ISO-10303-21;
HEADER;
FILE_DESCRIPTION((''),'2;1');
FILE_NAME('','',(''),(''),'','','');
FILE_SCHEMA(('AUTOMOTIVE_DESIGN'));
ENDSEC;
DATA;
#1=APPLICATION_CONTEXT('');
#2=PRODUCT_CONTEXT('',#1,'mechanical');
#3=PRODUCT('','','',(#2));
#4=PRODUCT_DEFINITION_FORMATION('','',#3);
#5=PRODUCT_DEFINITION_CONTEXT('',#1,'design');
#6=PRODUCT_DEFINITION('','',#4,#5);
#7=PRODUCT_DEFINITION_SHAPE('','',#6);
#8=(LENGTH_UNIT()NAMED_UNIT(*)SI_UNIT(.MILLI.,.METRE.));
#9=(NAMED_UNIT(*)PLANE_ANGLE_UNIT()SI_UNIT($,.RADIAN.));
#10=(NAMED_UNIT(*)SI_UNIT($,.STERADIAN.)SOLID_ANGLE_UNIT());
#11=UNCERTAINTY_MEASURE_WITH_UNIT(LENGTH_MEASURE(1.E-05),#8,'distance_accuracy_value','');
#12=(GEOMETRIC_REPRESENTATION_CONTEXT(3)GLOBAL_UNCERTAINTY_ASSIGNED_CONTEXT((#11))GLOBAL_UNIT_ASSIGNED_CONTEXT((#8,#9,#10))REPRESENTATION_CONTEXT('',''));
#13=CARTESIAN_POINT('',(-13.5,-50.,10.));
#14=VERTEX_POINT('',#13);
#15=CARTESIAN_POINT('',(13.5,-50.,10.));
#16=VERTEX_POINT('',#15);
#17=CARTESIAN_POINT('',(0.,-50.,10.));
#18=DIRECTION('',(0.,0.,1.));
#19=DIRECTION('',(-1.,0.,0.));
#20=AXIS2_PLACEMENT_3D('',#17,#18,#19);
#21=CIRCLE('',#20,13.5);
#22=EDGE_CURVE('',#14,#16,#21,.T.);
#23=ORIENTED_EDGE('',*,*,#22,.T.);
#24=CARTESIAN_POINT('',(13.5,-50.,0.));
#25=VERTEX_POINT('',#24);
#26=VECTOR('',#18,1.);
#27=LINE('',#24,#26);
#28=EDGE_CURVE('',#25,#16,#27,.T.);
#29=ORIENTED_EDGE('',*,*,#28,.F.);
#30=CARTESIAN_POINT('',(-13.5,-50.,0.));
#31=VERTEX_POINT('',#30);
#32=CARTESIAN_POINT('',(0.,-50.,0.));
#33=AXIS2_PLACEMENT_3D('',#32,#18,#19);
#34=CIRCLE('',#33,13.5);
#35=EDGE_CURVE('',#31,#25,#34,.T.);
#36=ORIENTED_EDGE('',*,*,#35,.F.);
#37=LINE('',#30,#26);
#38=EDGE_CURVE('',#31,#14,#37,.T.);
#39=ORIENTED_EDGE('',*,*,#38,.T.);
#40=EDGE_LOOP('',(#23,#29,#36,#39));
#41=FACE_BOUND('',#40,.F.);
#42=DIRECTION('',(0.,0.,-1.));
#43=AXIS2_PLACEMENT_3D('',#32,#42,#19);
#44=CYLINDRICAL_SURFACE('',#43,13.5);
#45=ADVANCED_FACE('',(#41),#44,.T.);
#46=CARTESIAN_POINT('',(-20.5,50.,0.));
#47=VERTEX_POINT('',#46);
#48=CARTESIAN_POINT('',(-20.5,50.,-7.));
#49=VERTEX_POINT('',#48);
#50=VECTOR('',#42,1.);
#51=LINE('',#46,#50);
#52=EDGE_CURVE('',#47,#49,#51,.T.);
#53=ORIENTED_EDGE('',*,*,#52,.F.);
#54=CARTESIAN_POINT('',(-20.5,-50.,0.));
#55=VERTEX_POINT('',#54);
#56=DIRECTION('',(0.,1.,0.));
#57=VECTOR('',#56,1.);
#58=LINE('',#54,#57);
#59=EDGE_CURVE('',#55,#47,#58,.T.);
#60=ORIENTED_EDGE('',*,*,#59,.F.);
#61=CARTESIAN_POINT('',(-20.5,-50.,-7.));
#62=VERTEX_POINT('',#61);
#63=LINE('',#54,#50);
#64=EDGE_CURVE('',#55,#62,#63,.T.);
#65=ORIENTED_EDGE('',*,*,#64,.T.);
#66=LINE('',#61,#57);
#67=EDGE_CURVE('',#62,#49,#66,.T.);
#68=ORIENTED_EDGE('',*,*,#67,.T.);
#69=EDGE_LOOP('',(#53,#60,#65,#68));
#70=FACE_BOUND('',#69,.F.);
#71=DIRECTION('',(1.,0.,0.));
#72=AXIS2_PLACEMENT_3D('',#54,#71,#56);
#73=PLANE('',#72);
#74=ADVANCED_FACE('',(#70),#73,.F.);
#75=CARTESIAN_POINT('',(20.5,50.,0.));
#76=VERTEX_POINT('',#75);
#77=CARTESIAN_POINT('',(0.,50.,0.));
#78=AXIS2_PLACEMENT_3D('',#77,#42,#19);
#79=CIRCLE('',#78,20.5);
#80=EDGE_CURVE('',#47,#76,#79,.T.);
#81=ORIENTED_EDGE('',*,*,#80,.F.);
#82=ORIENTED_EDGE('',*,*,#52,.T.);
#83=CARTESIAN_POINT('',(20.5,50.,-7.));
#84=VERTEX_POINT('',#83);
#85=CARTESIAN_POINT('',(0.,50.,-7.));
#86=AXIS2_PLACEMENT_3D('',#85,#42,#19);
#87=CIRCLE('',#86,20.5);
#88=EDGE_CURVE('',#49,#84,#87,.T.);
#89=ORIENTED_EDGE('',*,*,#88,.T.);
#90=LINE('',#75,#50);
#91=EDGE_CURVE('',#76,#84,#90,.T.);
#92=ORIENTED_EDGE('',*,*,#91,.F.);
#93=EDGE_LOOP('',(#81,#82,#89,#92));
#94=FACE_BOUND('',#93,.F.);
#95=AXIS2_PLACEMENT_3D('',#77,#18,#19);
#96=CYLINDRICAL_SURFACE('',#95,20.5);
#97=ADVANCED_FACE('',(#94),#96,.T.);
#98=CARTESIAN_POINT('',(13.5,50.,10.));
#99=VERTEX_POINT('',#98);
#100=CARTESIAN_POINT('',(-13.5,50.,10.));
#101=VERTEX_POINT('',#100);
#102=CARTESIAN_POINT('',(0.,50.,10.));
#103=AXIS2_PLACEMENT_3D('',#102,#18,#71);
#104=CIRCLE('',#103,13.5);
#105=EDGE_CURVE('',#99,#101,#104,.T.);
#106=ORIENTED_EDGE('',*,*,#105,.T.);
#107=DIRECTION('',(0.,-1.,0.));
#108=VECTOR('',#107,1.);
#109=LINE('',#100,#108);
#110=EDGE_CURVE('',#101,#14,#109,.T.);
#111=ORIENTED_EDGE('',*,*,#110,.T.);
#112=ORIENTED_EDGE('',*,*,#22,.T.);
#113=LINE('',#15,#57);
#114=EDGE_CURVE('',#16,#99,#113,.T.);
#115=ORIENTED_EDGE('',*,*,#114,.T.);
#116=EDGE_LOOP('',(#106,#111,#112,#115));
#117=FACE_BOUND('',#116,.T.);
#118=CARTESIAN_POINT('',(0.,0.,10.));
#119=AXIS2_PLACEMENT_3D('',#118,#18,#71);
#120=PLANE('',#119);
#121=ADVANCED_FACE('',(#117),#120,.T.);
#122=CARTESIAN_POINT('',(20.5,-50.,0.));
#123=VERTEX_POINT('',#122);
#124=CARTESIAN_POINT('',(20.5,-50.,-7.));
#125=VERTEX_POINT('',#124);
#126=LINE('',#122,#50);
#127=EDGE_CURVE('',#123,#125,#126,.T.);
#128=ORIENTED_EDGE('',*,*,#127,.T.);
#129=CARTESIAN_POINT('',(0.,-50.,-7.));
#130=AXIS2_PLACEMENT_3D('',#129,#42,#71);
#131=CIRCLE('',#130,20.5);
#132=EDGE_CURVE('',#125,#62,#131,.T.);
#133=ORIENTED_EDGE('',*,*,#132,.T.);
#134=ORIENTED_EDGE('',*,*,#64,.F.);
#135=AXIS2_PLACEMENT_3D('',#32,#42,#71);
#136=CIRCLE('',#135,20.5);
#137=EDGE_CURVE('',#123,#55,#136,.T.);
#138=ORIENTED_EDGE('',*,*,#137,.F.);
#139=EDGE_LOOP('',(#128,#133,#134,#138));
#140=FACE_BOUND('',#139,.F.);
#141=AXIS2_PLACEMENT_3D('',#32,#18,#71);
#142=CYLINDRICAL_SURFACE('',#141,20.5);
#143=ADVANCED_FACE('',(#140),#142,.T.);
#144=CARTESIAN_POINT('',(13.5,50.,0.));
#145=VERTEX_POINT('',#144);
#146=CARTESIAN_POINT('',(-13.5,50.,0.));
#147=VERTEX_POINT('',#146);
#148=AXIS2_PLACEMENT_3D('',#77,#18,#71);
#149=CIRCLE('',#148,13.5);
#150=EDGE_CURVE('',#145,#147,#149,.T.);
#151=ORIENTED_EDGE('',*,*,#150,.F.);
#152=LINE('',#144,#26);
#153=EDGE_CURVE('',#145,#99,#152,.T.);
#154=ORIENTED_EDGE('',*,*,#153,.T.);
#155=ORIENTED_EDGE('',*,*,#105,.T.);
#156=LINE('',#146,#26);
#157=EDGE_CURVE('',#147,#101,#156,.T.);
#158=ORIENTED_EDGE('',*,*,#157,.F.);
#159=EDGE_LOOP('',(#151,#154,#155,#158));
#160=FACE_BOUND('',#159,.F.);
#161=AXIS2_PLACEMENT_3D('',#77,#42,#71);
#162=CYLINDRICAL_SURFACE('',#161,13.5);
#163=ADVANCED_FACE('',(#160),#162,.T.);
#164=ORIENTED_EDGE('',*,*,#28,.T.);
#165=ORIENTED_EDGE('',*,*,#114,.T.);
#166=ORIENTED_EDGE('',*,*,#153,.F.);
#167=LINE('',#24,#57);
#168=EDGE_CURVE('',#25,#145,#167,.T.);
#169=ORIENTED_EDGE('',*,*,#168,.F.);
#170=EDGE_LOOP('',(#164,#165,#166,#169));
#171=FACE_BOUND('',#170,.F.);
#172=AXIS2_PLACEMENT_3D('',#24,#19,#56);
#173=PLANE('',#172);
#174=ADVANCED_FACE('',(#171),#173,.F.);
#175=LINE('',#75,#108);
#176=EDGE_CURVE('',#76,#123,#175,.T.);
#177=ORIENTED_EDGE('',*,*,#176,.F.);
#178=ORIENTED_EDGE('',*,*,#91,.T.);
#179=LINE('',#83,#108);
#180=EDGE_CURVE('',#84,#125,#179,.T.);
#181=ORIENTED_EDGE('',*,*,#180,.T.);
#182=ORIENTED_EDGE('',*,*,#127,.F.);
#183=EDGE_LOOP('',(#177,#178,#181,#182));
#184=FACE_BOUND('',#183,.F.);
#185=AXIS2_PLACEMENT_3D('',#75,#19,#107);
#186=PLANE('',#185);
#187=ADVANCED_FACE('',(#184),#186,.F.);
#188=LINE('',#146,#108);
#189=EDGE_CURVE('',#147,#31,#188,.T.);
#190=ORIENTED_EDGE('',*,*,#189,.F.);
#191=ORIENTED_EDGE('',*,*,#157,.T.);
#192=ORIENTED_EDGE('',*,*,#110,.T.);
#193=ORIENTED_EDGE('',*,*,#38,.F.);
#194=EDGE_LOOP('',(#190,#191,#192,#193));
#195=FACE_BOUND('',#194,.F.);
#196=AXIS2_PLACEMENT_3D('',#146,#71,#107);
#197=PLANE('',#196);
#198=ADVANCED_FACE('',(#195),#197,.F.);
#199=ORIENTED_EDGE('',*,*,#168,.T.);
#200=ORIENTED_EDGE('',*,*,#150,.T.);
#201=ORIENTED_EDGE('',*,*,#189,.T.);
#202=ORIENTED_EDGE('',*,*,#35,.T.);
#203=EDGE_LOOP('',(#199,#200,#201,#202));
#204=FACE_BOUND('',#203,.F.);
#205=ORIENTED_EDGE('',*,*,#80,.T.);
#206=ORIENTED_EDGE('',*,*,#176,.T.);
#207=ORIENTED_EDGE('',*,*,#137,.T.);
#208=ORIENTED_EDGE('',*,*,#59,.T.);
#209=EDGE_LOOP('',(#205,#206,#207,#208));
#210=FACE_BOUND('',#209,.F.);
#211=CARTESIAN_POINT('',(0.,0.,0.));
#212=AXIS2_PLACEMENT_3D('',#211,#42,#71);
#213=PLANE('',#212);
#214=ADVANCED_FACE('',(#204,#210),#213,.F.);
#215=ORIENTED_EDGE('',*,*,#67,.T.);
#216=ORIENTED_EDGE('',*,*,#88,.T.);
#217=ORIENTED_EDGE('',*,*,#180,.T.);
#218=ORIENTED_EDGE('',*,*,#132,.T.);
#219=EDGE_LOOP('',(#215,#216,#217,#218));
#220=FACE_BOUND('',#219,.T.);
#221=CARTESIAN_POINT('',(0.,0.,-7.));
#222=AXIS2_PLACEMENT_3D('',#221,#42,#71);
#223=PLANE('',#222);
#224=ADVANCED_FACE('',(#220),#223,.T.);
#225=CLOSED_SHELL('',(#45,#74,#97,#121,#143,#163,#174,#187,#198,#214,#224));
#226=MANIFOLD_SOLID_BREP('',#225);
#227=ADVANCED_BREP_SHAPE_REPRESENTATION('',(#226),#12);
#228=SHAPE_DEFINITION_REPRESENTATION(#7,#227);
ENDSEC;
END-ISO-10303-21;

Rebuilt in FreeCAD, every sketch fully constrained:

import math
import FreeCAD as App
import Part
import Sketcher
from FreeCAD import Vector
Q = App.Units.Quantity

doc = App.newDocument("Part")
params = doc.addObject("Spreadsheet::Sheet", "Params")
for row, (alias, value) in enumerate([
    ("sketch1_radius", "13.5 mm"),
    ("sketch1_height", "100 mm"),
    ("pad1_length", "10 mm"),
    ("sketch2_radius", "20.5 mm"),
    ("sketch2_height", "100 mm"),
    ("pad2_length", "7 mm"),
], start=1):
    params.set(f"A{row}", alias)
    params.set(f"B{row}", "=" + value)
    params.setAlias(f"B{row}", alias)

body = doc.addObject("PartDesign::Body", "Body")

# Sketch on XY plane
sketch1 = body.newObject("Sketcher::SketchObject", "Sketch")
sketch1.AttachmentSupport = (doc.getObject("XY_Plane"), [""])
sketch1.MapMode = "FlatFace"
sketch1.addGeometry([
    Part.LineSegment(Vector(-13.5, 50, 0), Vector(-13.5, -50, 0)),
    Part.ArcOfCircle(Part.Circle(Vector(0, -50, 0), Vector(0, 0, 1), 13.5), math.radians(180), math.radians(360)),
    Part.LineSegment(Vector(13.5, -50, 0), Vector(13.5, 50, 0)),
    Part.ArcOfCircle(Part.Circle(Vector(0, 50, 0), Vector(0, 0, 1), 13.5), math.radians(0), math.radians(180)),
], False)
sketch1.addConstraint([
    Sketcher.Constraint("Tangent", 0, 2, 1, 1),
    Sketcher.Constraint("Tangent", 1, 2, 2, 1),
    Sketcher.Constraint("Tangent", 2, 2, 3, 1),
    Sketcher.Constraint("Tangent", 3, 2, 0, 1),
    Sketcher.Constraint("Vertical", 0),
    Sketcher.Constraint("Vertical", 2),
    Sketcher.Constraint("Symmetric", 1, 3, 3, 3, -1, 1),
    Sketcher.Constraint("Radius", 1, Q("13.5 mm")),
    Sketcher.Constraint("DistanceY", 0, 2, 0, 1, Q("100 mm")),
])
sketch1.setExpression("Constraints[7]", "Params.sketch1_radius")
sketch1.setExpression("Constraints[8]", "Params.sketch1_height")
pad1 = body.newObject("PartDesign::Pad", "Pad")
pad1.Profile = sketch1
pad1.setExpression("Length", "Params.pad1_length")

# Sketch on XY plane
sketch2 = body.newObject("Sketcher::SketchObject", "Sketch001")
sketch2.AttachmentSupport = (doc.getObject("XY_Plane"), [""])
sketch2.MapMode = "FlatFace"
sketch2.addGeometry([
    Part.ArcOfCircle(Part.Circle(Vector(0, -50, 0), Vector(0, 0, 1), 20.5), math.radians(180), math.radians(360)),
    Part.LineSegment(Vector(-20.5, -50, 0), Vector(-20.5, 50, 0)),
    Part.ArcOfCircle(Part.Circle(Vector(0, 50, 0), Vector(0, 0, 1), 20.5), math.radians(0), math.radians(180)),
    Part.LineSegment(Vector(20.5, 50, 0), Vector(20.5, -50, 0)),
], False)
sketch2.addConstraint([
    Sketcher.Constraint("Tangent", 0, 1, 1, 1),
    Sketcher.Constraint("Tangent", 1, 2, 2, 2),
    Sketcher.Constraint("Tangent", 2, 1, 3, 1),
    Sketcher.Constraint("Tangent", 3, 2, 0, 2),
    Sketcher.Constraint("Vertical", 1),
    Sketcher.Constraint("Vertical", 3),
    Sketcher.Constraint("Symmetric", 0, 3, 2, 3, -1, 1),
    Sketcher.Constraint("Radius", 0, Q("20.5 mm")),
    Sketcher.Constraint("DistanceY", 1, 1, 1, 2, Q("100 mm")),
])
sketch2.setExpression("Constraints[7]", "Params.sketch2_radius")
sketch2.setExpression("Constraints[8]", "Params.sketch2_height")
pad2 = body.newObject("PartDesign::Pad", "Pad001")
pad2.Profile = sketch2
pad2.setExpression("Length", "Params.pad2_length")
pad2.Reversed = True

doc.recompute()
